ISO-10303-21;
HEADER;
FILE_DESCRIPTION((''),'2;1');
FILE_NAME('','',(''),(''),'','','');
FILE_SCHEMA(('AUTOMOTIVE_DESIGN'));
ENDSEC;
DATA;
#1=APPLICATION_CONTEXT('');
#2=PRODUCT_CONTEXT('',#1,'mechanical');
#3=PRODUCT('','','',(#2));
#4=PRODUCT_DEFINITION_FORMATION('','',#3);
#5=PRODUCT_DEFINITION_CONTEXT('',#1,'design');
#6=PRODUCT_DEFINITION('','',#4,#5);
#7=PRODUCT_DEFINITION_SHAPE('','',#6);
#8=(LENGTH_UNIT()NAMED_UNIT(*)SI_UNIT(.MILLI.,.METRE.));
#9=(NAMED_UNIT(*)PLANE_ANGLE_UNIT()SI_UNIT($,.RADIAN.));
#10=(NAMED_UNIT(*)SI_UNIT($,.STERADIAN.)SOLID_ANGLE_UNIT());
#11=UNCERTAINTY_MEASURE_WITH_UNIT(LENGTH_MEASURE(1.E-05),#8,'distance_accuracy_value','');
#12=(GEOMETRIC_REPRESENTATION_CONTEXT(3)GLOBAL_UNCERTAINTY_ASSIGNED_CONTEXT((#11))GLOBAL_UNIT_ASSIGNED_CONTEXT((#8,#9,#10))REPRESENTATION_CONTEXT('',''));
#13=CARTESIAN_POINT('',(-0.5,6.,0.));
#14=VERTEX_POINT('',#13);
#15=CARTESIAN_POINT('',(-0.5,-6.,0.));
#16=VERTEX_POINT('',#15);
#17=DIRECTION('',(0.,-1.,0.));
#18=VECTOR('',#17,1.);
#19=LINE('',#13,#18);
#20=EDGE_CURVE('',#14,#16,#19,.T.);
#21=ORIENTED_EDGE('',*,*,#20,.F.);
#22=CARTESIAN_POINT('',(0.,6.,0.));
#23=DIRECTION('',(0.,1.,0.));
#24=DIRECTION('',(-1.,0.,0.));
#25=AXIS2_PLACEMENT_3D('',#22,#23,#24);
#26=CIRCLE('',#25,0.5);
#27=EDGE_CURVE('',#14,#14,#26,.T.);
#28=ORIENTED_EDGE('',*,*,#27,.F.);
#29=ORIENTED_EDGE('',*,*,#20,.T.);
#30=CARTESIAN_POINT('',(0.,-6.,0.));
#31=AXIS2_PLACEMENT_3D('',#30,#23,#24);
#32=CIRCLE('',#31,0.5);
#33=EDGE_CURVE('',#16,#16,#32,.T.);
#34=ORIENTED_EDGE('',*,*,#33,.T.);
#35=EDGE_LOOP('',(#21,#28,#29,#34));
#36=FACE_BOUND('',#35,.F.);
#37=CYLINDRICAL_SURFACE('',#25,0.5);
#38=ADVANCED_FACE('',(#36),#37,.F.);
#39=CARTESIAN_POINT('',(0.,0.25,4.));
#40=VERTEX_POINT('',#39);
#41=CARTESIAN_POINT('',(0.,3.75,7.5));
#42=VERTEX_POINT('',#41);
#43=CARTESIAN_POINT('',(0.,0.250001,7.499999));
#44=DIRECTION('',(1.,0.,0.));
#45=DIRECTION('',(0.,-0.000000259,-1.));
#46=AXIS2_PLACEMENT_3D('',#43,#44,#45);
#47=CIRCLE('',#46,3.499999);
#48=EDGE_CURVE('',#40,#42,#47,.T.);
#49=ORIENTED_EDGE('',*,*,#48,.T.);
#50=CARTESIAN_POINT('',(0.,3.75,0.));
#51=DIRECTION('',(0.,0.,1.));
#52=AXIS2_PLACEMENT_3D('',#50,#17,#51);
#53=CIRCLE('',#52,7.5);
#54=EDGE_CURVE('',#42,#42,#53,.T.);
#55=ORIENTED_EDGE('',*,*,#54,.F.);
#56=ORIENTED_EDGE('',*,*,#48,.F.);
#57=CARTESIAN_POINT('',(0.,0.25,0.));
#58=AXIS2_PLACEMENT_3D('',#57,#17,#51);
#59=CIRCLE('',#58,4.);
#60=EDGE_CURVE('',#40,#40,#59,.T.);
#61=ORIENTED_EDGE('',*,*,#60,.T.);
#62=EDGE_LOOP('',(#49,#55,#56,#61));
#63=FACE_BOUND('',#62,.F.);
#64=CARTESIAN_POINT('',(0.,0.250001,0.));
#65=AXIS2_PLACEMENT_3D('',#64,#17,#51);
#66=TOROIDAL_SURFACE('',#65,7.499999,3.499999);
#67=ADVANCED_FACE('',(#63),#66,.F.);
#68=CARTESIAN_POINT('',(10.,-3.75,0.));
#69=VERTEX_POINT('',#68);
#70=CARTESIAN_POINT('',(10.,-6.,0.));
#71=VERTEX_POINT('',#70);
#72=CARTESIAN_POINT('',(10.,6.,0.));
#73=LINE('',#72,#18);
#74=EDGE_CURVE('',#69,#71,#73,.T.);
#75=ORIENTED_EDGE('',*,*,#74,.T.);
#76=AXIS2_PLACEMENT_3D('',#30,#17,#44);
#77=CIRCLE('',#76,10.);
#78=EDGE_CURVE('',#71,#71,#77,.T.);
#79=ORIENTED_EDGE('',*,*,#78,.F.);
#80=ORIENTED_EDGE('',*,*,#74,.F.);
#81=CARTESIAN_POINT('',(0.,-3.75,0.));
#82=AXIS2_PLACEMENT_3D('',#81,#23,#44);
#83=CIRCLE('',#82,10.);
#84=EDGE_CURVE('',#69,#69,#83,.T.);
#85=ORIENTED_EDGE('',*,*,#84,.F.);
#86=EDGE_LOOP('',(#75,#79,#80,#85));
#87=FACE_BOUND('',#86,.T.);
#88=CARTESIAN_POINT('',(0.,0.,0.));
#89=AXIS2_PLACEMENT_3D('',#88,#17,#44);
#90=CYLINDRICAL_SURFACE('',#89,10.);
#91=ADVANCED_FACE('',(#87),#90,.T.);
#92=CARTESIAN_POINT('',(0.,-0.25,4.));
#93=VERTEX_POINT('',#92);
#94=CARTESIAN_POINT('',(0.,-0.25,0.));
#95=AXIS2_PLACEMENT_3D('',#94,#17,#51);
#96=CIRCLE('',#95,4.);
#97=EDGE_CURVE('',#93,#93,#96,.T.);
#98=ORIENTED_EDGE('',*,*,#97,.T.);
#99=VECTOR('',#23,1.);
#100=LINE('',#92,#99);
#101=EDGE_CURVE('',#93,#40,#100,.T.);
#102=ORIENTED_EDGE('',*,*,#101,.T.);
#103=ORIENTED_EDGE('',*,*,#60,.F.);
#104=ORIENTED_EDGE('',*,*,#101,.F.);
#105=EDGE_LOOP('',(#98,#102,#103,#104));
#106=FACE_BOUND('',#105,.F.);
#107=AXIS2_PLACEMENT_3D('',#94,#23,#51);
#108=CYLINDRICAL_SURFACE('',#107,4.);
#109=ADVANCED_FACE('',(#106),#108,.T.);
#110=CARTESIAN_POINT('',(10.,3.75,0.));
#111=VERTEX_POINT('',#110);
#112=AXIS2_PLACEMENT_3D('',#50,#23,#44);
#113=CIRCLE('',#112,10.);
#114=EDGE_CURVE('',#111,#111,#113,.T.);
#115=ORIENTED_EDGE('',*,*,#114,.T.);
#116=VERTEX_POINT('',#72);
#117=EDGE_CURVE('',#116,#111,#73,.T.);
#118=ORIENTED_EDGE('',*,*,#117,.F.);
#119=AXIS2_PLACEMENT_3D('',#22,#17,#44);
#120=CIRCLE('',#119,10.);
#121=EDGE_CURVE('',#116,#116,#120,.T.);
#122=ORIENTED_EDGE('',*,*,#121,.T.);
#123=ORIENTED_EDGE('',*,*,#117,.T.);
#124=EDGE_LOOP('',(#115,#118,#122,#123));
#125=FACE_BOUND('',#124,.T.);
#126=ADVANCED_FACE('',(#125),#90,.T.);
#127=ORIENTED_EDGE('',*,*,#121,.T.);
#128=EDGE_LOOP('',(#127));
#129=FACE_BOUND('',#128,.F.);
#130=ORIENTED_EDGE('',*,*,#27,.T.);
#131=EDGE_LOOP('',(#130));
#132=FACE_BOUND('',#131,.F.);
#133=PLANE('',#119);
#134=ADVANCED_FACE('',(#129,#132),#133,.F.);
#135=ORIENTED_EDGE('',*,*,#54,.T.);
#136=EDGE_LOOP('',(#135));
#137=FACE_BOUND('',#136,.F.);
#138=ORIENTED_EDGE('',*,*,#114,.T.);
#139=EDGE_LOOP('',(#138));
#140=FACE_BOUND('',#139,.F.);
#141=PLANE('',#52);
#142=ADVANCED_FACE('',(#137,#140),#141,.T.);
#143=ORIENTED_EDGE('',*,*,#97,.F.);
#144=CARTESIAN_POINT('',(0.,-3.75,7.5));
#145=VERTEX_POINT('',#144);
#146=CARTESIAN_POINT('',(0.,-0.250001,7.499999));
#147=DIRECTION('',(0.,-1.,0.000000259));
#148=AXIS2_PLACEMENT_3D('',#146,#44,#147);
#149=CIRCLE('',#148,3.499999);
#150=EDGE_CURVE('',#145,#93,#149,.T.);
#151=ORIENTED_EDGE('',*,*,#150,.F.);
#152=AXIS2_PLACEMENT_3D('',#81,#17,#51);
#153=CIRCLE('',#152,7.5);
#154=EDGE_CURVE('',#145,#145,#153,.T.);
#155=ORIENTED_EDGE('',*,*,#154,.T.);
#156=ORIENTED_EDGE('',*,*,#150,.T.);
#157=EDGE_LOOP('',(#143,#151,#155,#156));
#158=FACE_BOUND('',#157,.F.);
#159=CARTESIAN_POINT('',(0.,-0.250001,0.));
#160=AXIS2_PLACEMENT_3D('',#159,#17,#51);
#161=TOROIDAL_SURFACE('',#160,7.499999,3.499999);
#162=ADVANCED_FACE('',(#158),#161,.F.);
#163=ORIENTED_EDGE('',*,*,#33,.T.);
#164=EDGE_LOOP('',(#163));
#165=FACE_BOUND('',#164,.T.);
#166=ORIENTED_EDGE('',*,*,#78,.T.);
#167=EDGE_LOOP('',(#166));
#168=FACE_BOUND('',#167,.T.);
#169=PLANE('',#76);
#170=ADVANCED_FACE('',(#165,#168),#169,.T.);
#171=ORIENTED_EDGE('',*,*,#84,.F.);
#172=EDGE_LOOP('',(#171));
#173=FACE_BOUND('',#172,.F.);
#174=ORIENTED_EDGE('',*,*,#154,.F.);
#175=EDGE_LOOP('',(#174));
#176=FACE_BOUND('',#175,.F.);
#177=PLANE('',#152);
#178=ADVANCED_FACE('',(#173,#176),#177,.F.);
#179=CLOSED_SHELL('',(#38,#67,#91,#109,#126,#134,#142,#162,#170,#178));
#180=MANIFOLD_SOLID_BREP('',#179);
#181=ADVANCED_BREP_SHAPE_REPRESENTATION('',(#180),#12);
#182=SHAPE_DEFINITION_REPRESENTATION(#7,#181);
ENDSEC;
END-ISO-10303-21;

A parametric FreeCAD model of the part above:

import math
import FreeCAD as App
import Part
import Sketcher

V = App.Vector

doc = App.newDocument("Part")
body = doc.addObject("PartDesign::Body", "Body")

sketch1 = body.newObject("Sketcher::SketchObject", "Sketch")
sketch1.AttachmentSupport = (doc.getObject("XZ_Plane"), [""])
sketch1.MapMode = "FlatFace"
sketch1.addGeometry(Part.Circle(V(0, 0, 0), V(0, 0, 1), 10), False)
sketch1.addConstraint(Sketcher.Constraint("Coincident", 0, 3, -1, 1))
sketch1.addConstraint(Sketcher.Constraint("Diameter", 0, 20.0))
pad1 = body.newObject("PartDesign::Pad", "Pad")
pad1.Profile = sketch1
pad1.Length = 12
pad1.Midplane = True

sketch2 = body.newObject("Sketcher::SketchObject", "Sketch001")
sketch2.AttachmentSupport = (doc.getObject("YZ_Plane"), [""])
sketch2.MapMode = "FlatFace"
sketch2.addGeometry(Part.LineSegment(V(3.75, 10, 0), V(-3.75, 10, 0)), False)
sketch2.addGeometry(Part.LineSegment(V(-3.75, 10, 0), V(-3.75, 7.5, 0)), False)
sketch2.addGeometry(Part.ArcOfCircle(Part.Circle(V(-0.250001, 7.499999, 0), V(0, 0, 1), 3.499999), math.radians(179.999985), math.radians(270.000015)), False)
sketch2.addGeometry(Part.LineSegment(V(-0.25, 4, 0), V(0.25, 4, 0)), False)
sketch2.addGeometry(Part.ArcOfCircle(Part.Circle(V(0.250001, 7.499999, 0), V(0, 0, 1), 3.499999), math.radians(-90.000015), math.radians(0.000015)), False)
sketch2.addGeometry(Part.LineSegment(V(3.75, 7.5, 0), V(3.75, 10, 0)), False)
sketch2.addConstraint(Sketcher.Constraint("Coincident", 0, 2, 1, 1))
sketch2.addConstraint(Sketcher.Constraint("Tangent", 1, 2, 2, 1))
sketch2.addConstraint(Sketcher.Constraint("Tangent", 2, 2, 3, 1))
sketch2.addConstraint(Sketcher.Constraint("Tangent", 3, 2, 4, 1))
sketch2.addConstraint(Sketcher.Constraint("Tangent", 4, 2, 5, 1))
sketch2.addConstraint(Sketcher.Constraint("Coincident", 5, 2, 0, 1))
sketch2.addConstraint(Sketcher.Constraint("Horizontal", 0))
sketch2.addConstraint(Sketcher.Constraint("Vertical", 1))
sketch2.addConstraint(Sketcher.Constraint("Horizontal", 3))
sketch2.addConstraint(Sketcher.Constraint("Vertical", 5))
sketch2.addConstraint(Sketcher.Constraint("Equal", 2, 4))
sketch2.addConstraint(Sketcher.Constraint("Radius", 2, 3.499999))
sketch2.addConstraint(Sketcher.Constraint("DistanceX", 0, 2, 0, 1, 7.5))
sketch2.addConstraint(Sketcher.Constraint("DistanceY", 1, 2, 1, 1, 2.5))
sketch2.addConstraint(Sketcher.Constraint("DistanceY", -1, 1, 0, 2, 10.0))
sketch2.addConstraint(Sketcher.Constraint("DistanceX", 2, 3, -1, 1, 0.250001))
groove = body.newObject("PartDesign::Groove", "Groove")
groove.Profile = sketch2
groove.ReferenceAxis = (sketch2, ["H_Axis"])
groove.Angle = 360

sketch3 = body.newObject("Sketcher::SketchObject", "Sketch002")
sketch3.AttachmentSupport = (doc.getObject("XZ_Plane"), [""])
sketch3.MapMode = "FlatFace"
sketch3.AttachmentOffset = App.Placement(V(0, 0, -6), App.Rotation())
sketch3.addGeometry(Part.Circle(V(0, 0, 0), V(0, 0, 1), 0.5), False)
sketch3.addConstraint(Sketcher.Constraint("Coincident", 0, 3, -1, 1))
sketch3.addConstraint(Sketcher.Constraint("Diameter", 0, 1.0))
pocket1 = body.newObject("PartDesign::Pocket", "Pocket")
pocket1.Profile = sketch3
pocket1.Type = "ThroughAll"
pocket1.Reversed = True

doc.recompute()
